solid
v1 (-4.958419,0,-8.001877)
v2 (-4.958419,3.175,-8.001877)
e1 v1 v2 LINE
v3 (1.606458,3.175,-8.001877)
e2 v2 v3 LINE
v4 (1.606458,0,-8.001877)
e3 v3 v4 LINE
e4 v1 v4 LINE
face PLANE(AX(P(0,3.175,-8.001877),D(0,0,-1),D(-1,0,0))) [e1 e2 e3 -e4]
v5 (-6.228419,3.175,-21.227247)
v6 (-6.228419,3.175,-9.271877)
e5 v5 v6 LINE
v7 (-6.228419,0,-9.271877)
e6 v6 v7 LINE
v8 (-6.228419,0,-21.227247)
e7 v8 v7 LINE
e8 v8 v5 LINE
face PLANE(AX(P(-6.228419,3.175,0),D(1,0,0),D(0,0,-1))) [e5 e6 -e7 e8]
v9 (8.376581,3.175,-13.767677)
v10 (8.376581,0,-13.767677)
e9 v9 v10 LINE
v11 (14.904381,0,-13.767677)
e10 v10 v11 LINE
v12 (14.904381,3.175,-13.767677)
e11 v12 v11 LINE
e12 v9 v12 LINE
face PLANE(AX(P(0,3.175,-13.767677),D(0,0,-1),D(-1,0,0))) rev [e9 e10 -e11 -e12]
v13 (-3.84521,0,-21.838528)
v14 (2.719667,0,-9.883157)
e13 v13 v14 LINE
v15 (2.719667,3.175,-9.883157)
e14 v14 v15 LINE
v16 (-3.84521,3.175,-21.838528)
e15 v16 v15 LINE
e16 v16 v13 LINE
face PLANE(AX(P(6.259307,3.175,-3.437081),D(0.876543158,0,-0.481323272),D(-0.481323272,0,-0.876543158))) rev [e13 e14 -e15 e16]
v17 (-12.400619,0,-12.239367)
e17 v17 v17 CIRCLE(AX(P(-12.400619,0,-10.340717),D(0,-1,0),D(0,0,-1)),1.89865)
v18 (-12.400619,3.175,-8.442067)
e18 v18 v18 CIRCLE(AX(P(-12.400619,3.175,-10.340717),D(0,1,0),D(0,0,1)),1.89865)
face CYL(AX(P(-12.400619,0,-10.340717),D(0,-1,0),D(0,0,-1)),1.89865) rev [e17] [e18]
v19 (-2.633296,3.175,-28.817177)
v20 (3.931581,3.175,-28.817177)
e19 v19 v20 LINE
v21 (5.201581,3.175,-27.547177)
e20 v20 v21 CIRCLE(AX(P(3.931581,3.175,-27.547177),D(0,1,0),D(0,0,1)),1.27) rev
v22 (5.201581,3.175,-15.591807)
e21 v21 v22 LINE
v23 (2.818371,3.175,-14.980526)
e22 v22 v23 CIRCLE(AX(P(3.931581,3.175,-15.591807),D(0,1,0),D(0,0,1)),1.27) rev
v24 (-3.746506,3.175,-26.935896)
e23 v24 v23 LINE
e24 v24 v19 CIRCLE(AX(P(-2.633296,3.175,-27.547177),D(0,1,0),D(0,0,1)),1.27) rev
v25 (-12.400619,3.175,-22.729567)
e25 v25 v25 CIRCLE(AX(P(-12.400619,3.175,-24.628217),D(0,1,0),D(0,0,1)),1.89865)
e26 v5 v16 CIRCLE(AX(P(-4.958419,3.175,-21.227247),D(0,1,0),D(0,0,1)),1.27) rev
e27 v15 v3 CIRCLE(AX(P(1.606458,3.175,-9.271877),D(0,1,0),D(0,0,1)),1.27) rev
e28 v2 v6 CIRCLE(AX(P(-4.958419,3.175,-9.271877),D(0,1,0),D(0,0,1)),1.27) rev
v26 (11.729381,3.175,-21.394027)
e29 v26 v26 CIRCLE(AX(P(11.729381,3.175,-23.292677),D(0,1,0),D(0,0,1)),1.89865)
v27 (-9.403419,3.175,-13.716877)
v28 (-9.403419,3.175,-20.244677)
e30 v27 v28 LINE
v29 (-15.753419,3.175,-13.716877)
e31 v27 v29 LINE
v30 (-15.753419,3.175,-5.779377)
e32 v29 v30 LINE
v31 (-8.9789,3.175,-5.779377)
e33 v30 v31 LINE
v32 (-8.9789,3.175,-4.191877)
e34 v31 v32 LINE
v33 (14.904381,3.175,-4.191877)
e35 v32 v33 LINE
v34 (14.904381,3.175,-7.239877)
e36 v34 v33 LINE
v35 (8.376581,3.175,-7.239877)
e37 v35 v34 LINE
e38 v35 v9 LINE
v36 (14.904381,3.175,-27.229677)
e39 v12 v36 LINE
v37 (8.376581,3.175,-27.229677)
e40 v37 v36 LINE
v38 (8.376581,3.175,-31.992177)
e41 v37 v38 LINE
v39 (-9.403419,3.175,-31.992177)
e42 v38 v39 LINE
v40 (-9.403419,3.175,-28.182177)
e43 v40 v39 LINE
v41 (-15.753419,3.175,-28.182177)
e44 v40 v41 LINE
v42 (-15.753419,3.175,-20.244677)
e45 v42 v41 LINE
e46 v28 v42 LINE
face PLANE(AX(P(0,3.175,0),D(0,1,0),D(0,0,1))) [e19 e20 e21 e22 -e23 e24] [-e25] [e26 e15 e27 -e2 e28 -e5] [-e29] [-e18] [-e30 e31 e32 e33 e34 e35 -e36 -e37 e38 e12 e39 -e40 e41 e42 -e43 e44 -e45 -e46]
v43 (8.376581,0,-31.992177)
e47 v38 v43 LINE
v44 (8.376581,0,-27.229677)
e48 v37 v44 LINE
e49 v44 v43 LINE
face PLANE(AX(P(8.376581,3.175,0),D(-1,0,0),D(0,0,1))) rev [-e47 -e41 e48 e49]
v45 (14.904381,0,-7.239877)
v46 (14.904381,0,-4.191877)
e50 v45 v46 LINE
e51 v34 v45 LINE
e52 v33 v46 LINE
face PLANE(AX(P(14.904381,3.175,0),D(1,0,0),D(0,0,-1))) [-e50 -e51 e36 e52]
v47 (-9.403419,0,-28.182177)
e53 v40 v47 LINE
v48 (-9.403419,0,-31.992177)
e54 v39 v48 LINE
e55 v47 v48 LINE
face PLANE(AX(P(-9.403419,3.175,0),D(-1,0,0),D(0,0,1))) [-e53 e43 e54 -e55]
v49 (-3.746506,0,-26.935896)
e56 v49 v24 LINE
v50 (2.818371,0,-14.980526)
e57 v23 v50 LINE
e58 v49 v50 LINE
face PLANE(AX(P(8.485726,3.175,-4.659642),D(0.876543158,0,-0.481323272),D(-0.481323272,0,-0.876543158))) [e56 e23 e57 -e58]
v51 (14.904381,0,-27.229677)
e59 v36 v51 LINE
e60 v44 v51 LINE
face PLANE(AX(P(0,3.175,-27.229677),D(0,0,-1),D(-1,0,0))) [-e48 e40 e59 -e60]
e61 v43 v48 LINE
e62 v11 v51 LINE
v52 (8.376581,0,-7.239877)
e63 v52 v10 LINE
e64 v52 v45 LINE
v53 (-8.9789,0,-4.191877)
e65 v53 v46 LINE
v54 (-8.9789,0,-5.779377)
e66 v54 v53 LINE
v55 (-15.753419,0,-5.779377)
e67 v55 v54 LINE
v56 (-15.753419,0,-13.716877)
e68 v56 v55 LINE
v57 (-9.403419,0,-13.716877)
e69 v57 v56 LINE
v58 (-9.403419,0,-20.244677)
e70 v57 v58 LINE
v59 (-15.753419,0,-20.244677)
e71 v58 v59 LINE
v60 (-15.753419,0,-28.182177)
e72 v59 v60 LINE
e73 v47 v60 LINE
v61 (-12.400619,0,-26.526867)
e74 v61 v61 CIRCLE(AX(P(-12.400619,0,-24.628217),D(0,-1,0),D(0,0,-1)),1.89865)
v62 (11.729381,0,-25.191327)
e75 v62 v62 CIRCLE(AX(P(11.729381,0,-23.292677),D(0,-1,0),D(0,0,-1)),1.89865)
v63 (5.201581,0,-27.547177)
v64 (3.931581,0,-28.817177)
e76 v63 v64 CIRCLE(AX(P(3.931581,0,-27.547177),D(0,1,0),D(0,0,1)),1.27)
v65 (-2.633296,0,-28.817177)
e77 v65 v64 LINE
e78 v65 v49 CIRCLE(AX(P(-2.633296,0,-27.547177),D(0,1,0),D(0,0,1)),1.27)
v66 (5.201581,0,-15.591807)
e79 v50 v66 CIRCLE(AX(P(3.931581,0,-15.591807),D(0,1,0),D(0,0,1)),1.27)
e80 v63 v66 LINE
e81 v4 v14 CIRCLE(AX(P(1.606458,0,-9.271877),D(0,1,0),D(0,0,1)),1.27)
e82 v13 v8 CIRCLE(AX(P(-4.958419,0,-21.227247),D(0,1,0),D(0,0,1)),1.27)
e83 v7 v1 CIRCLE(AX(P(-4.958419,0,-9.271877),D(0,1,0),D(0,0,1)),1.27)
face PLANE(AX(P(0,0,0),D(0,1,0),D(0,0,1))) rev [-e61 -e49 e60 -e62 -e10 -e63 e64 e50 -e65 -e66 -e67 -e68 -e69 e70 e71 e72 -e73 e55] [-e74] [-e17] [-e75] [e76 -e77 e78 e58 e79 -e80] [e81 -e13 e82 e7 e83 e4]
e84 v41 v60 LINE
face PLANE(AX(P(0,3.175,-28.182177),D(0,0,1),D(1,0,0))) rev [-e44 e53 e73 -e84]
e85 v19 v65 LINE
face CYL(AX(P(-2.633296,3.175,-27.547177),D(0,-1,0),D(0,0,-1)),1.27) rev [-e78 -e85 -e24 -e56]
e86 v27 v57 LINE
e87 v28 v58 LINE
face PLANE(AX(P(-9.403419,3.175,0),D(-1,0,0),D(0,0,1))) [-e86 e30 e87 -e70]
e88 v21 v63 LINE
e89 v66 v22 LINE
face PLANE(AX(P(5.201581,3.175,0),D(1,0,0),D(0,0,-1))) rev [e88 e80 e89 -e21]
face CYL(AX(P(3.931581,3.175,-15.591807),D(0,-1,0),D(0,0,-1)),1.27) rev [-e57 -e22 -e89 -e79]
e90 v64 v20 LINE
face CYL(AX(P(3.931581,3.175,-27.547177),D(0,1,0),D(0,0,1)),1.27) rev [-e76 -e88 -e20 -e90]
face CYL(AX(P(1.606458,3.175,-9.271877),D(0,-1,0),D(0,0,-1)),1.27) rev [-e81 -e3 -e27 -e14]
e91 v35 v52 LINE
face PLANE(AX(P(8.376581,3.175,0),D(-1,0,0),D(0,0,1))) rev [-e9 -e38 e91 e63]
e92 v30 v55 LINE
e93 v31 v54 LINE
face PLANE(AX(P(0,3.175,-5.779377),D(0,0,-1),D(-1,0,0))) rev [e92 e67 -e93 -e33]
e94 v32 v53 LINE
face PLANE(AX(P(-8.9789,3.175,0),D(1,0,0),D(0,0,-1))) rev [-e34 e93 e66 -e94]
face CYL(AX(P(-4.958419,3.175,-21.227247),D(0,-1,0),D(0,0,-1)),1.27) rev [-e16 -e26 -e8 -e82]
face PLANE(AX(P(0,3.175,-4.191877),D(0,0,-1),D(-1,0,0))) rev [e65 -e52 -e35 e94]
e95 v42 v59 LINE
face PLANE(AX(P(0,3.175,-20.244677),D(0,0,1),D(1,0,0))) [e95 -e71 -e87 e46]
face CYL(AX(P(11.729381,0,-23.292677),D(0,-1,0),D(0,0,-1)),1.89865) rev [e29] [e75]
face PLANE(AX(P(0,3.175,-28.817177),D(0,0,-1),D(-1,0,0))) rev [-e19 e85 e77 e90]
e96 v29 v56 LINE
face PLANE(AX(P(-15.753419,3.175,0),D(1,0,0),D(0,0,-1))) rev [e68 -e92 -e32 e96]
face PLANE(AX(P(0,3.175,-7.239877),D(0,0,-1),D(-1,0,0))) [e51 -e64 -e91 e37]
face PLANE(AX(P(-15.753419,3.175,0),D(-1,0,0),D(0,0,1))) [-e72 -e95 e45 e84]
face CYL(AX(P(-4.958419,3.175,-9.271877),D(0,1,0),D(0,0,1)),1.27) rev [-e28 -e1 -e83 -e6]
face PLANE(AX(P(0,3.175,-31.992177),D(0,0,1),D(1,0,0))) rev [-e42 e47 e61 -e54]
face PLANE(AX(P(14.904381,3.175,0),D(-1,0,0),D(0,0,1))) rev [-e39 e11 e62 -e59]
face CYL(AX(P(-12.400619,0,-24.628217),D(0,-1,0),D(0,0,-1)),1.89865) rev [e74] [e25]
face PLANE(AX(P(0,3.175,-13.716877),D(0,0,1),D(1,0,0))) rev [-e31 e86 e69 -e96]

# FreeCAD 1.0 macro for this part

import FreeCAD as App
import Part
import Sketcher
from FreeCAD import Vector
Q = App.Units.Quantity


def edges_at(feature, points):
    """Names of the edges that pass closest to the given points."""
    edges = feature.Shape.Edges
    near = lambda p: min(range(len(edges)), key=lambda i: edges[i].distToShape(Part.Vertex(*p))[0])
    return sorted({f"Edge{near(p) + 1}" for p in points})


def add_polygon(sketch, points):
    """Adds a closed chain of lines whose ends are joined by coincident constraints."""
    first, n = sketch.GeometryCount, len(points)
    for a, b in zip(points, points[1:] + points[:1]):
        sketch.addGeometry(Part.LineSegment(App.Vector(*a, 0), App.Vector(*b, 0)), False)
    for i in range(n):
        sketch.addConstraint(Sketcher.Constraint("Coincident", first + i, 2, first + (i + 1) % n, 1))

doc = App.newDocument("Part")
body = doc.addObject("PartDesign::Body", "Body")

# Sketch on XZ plane
sketch1 = body.newObject("Sketcher::SketchObject", "Sketch")
sketch1.AttachmentSupport = (doc.getObject("XZ_Plane"), [""])
sketch1.MapMode = "FlatFace"
add_polygon(sketch1, [(-9.403419, -20.244677), (-9.403419, -13.716877), (-15.753419, -13.716877), (-15.753419, -5.779377), (-8.9789, -5.779377), (-8.9789, -4.191877), (14.904381, -4.191877), (14.904381, -7.239877), (8.376581, -7.239877), (8.376581, -13.767677), (14.904381, -13.767677), (14.904381, -27.229677), (8.376581, -27.229677), (8.376581, -31.992177), (-9.403419, -31.992177), (-9.403419, -28.182177), (-15.753419, -28.182177), (-15.753419, -20.244677)])  # lines 0-17
add_polygon(sketch1, [(3.752707, -8.001877), (-6.228419, -8.001877), (-6.228419, -26.178618)])  # lines 18-20
add_polygon(sketch1, [(-4.779546, -28.817177), (5.201581, -28.817177), (5.201581, -10.640436)])  # lines 21-23
sketch1.addConstraint([
    Sketcher.Constraint("Vertical", 0),
    Sketcher.Constraint("Horizontal", 1),
    Sketcher.Constraint("Vertical", 2),
    Sketcher.Constraint("Horizontal", 3),
    Sketcher.Constraint("Vertical", 4),
    Sketcher.Constraint("Horizontal", 5),
    Sketcher.Constraint("Vertical", 6),
    Sketcher.Constraint("Horizontal", 7),
    Sketcher.Constraint("Vertical", 8),
    Sketcher.Constraint("Horizontal", 9),
    Sketcher.Constraint("Vertical", 10),
    Sketcher.Constraint("Horizontal", 11),
    Sketcher.Constraint("Vertical", 12),
    Sketcher.Constraint("Horizontal", 13),
    Sketcher.Constraint("Vertical", 14),
    Sketcher.Constraint("Horizontal", 15),
    Sketcher.Constraint("Vertical", 16),
    Sketcher.Constraint("Horizontal", 17),
    Sketcher.Constraint("Horizontal", 18),
    Sketcher.Constraint("Vertical", 19),
    Sketcher.Constraint("Horizontal", 21),
    Sketcher.Constraint("Vertical", 22),
    Sketcher.Constraint("Parallel", 20, 23),
    Sketcher.Constraint("Vertical", 6, 2, 9, 2),
    Sketcher.Constraint("Vertical", 8, 2, 11, 2),
    Sketcher.Constraint("Vertical", 0, 2, 13, 2),
    Sketcher.Constraint("Vertical", 2, 2, 15, 2),
    Sketcher.Constraint("Equal", 18, 21),
    Sketcher.Constraint("Equal", 11, 0),
    Sketcher.Constraint("Equal", 0, 8),
    Sketcher.Constraint("Equal", 2, 16),
    Sketcher.Constraint("DistanceX", 13, 2, 13, 1, Q("0.7 in")),
    Sketcher.Constraint("DistanceX", 1, 2, 1, 1, Q("0.25 in")),
    Sketcher.Constraint("DistanceY", 6, 2, 6, 1, Q("0.12 in")),
    Sketcher.Constraint("DistanceY", 10, 2, 10, 1, Q("0.53 in")),
    Sketcher.Constraint("DistanceY", 14, 1, 14, 2, Q("0.15 in")),
    Sketcher.Constraint("DistanceX", 7, 2, 7, 1, Q("0.257 in")),
    Sketcher.Constraint("DistanceY", 2, 1, 2, 2, Q("0.3125 in")),
    Sketcher.Constraint("DistanceY", 4, 1, 4, 2, Q("0.0625 in")),
    Sketcher.Constraint("DistanceY", 18, 2, 4, 2, Q("0.15 in")),
    Sketcher.Constraint("DistanceX", 19, 2, 21, 2, Q("0.45 in")),
    Sketcher.Constraint("DistanceX", 0, 2, 18, 2, Q("0.125 in")),
    Sketcher.Constraint("DistanceY", 21, 2, 11, 2, Q("0.0625 in")),
    Sketcher.Constraint("DistanceX", 3, 2, -1, 1, Q("0.3535 in")),
    Sketcher.Constraint("DistanceX", 3, 1, 3, 2, 6.774519),
    Sketcher.Constraint("DistanceY", 19, 2, 19, 1, 18.176741),
    Sketcher.Constraint("DistanceX", 18, 2, 18, 1, 9.981127),
    Sketcher.Constraint("DistanceY", 0, 2, -1, 1, 13.716877),
])
pad1 = body.newObject("PartDesign::Pad", "Pad")
pad1.Profile = sketch1
pad1.Length = Q("0.125 in")
pad1.Reversed = True

# Sketch on XZ plane
sketch2 = body.newObject("Sketcher::SketchObject", "Sketch001")
sketch2.AttachmentSupport = (doc.getObject("XZ_Plane"), [""])
sketch2.MapMode = "FlatFace"
sketch2.addGeometry([
    Part.Circle(Vector(11.729381, -23.292677, 0), Vector(0, 0, 1), 1.89865),
    Part.Circle(Vector(-12.400619, -24.628217, 0), Vector(0, 0, 1), 1.89865),
    Part.Circle(Vector(-12.400619, -10.340717, 0), Vector(0, 0, 1), 1.89865),
], False)
sketch2.addConstraint([
    Sketcher.Constraint("Equal", 0, 1),
    Sketcher.Constraint("Equal", 1, 2),
    Sketcher.Constraint("Vertical", 1, 3, 2, 3),
    Sketcher.Constraint("Diameter", 0, Q("0.1495 in")),
    Sketcher.Constraint("DistanceX", 1, 3, 0, 3, Q("0.95 in")),
    Sketcher.Constraint("DistanceY", 1, 3, 2, 3, Q("0.5625 in")),
    Sketcher.Constraint("DistanceX", -1, 1, 0, 3, 11.729381),
    Sketcher.Constraint("DistanceY", 1, 3, 0, 3, 1.33554),
    Sketcher.Constraint("DistanceY", 0, 3, -1, 1, 23.292677),
])
doc.recompute()
hole = body.newObject("PartDesign::Hole", "Hole")
hole.Profile = sketch2
hole.ThreadType = "None"
hole.Diameter = Q("0.1495 in")
hole.DepthType = "Dimension"
hole.Depth = Q("0.25 in")
hole.DrillPoint = "Angled"
hole.DrillPointAngle = 118
doc.recompute()

fillet = body.newObject("PartDesign::Fillet", "Fillet")
fillet.Base = (hole, edges_at(hole, [
    (-6.228, 1.587, -26.179),
    (-6.228, 1.587, -8.002),
    (3.753, 1.587, -8.002),
    (5.202, 1.587, -10.64),
    (5.202, 1.587, -28.817),
    (-4.78, 1.587, -28.817),
]))
fillet.Radius = Q("0.05 in")

doc.recompute()
